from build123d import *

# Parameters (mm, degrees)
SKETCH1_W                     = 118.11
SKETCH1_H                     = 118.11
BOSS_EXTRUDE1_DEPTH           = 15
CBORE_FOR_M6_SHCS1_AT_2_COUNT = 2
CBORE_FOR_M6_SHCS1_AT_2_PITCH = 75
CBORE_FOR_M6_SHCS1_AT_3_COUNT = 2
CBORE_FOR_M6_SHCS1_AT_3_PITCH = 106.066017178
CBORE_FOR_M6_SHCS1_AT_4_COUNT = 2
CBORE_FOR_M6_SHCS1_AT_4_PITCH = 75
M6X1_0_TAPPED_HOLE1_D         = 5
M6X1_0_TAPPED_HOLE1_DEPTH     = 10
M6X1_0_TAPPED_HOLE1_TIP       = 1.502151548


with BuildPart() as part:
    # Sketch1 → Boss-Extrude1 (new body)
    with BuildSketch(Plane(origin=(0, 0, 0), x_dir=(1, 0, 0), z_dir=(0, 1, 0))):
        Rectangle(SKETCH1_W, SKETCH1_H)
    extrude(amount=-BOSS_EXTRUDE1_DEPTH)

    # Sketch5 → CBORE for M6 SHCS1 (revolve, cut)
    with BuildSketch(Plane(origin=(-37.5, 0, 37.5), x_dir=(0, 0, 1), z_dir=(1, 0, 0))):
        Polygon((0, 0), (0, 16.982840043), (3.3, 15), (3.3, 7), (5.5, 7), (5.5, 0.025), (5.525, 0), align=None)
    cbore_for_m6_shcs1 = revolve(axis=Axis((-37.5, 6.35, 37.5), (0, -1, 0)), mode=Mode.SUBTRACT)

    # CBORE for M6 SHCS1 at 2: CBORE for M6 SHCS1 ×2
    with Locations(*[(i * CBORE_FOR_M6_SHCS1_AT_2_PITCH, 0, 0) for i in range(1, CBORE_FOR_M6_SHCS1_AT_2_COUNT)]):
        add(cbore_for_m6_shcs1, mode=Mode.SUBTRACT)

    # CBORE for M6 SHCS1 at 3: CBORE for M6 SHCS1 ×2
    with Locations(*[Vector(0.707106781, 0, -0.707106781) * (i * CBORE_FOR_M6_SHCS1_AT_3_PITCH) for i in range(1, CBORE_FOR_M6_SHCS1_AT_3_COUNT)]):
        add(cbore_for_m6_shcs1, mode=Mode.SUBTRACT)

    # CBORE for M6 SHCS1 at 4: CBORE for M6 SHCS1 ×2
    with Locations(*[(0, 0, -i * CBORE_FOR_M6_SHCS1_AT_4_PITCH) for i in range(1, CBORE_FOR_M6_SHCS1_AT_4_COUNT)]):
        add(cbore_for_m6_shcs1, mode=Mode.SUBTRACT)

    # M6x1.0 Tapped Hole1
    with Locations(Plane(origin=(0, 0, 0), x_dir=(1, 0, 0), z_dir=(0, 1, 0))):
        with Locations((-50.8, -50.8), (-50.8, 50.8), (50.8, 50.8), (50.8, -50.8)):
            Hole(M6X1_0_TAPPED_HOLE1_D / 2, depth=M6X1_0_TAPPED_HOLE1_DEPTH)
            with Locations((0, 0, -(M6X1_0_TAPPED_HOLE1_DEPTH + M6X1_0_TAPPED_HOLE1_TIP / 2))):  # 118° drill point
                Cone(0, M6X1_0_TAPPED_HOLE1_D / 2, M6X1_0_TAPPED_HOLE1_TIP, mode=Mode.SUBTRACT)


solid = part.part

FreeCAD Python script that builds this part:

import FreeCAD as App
import Part
import Sketcher

V = App.Vector
Q = App.Units.Quantity


def add_polygon(sketch, points):
    """Adds a closed chain of lines whose ends are joined by coincident constraints."""
    first, n = sketch.GeometryCount, len(points)
    for a, b in zip(points, points[1:] + points[:1]):
        sketch.addGeometry(Part.LineSegment(App.Vector(*a, 0), App.Vector(*b, 0)), False)
    for i in range(n):
        sketch.addConstraint(Sketcher.Constraint("Coincident", first + i, 2, first + (i + 1) % n, 1))

doc = App.newDocument("Part")
body = doc.addObject("PartDesign::Body", "Body")

# Sketch on XZ plane
sketch1 = body.newObject("Sketcher::SketchObject", "Sketch")
sketch1.AttachmentSupport = (doc.getObject("XZ_Plane"), [""])
sketch1.MapMode = "FlatFace"
add_polygon(sketch1, [(-59.055, -59.055), (-59.055, 59.055), (59.055, 59.055), (59.055, -59.055)])  # lines 0-3
sketch1.addConstraint(Sketcher.Constraint("Vertical", 0))
sketch1.addConstraint(Sketcher.Constraint("Horizontal", 1))
sketch1.addConstraint(Sketcher.Constraint("Vertical", 2))
sketch1.addConstraint(Sketcher.Constraint("Horizontal", 3))
sketch1.addConstraint(Sketcher.Constraint("Symmetric", 0, 2, 2, 2, -1, 1))
sketch1.addConstraint(Sketcher.Constraint("Equal", 3, 0))
sketch1.addConstraint(Sketcher.Constraint("DistanceX", 1, 1, 1, 2, Q("118.11 mm")))
pad1 = body.newObject("PartDesign::Pad", "Pad")
pad1.Profile = sketch1
pad1.Length = 15

# Sketch on YZ plane
sketch2 = body.newObject("Sketcher::SketchObject", "Sketch001")
sketch2.AttachmentSupport = (doc.getObject("YZ_Plane"), [""])
sketch2.MapMode = "FlatFace"
sketch2.AttachmentOffset = App.Placement(V(0, 0, -37.5), App.Rotation())
add_polygon(sketch2, [(-16.98284, 37.5), (0, 37.5), (0, 43.025), (-0.025, 43), (-7, 43), (-7, 40.8), (-15, 40.8)])  # lines 0-6
sketch2.addGeometry(Part.LineSegment(V(0, 37.5, 0), V(-16.98284, 37.5, 0)), True)  # axis
sketch2.addConstraint(Sketcher.Constraint("Horizontal", 0))
sketch2.addConstraint(Sketcher.Constraint("Vertical", 1))
sketch2.addConstraint(Sketcher.Constraint("Horizontal", 3))
sketch2.addConstraint(Sketcher.Constraint("Vertical", 4))
sketch2.addConstraint(Sketcher.Constraint("Horizontal", 5))
sketch2.addConstraint(Sketcher.Constraint("Horizontal", 7))
sketch2.addConstraint(Sketcher.Constraint("Coincident", 7, 1, 0, 2))
sketch2.addConstraint(Sketcher.Constraint("PointOnObject", 0, 2, -2))
sketch2.addConstraint(Sketcher.Constraint("Equal", 0, 7))
sketch2.addConstraint(Sketcher.Constraint("DistanceX", 5, 2, 5, 1, Q("8 mm")))
sketch2.addConstraint(Sketcher.Constraint("Angle", 2, Q("-135 deg")))
sketch2.addConstraint(Sketcher.Constraint("Angle", 6, Q("-121 deg")))
sketch2.addConstraint(Sketcher.Constraint("DistanceY", 4, 2, 4, 1, Q("2.2 mm")))
sketch2.addConstraint(Sketcher.Constraint("DistanceY", -1, 1, 2, 2, Q("43 mm")))
sketch2.addConstraint(Sketcher.Constraint("DistanceX", 3, 2, -1, 1, Q("7 mm")))
sketch2.addConstraint(Sketcher.Constraint("DistanceY", -1, 1, 0, 2, Q("37.5 mm")))
sketch2.addConstraint(Sketcher.Constraint("DistanceX", 3, 2, 3, 1, Q("6.975 mm")))
groove = body.newObject("PartDesign::Groove", "Groove")
groove.Profile = sketch2
groove.ReferenceAxis = (sketch2, ["Axis0"])
groove.Angle = 360
doc.recompute()

linearpattern = body.newObject("PartDesign::LinearPattern", "LinearPattern")
linearpattern.Originals = [groove]
linearpattern.Direction = (doc.getObject("X_Axis"), [""])
linearpattern.Mode = "offset"
linearpattern.Offset = 75
linearpattern.Occurrences = 2
body.Tip = linearpattern
doc.recompute()

datumline = body.newObject("PartDesign::Line", "DatumLine")
datumline.Placement = App.Placement(V(0, 0, 0), App.Rotation(V(0, 0, 1), V(0.707106781, 0, -0.707106781)))
linearpattern2 = body.newObject("PartDesign::LinearPattern", "LinearPattern001")
linearpattern2.Originals = [groove]
linearpattern2.Direction = (datumline, [""])
linearpattern2.Mode = "offset"
linearpattern2.Offset = 106.066017
linearpattern2.Occurrences = 2
body.Tip = linearpattern2
doc.recompute()

linearpattern3 = body.newObject("PartDesign::LinearPattern", "LinearPattern002")
linearpattern3.Originals = [groove]
linearpattern3.Direction = (doc.getObject("Z_Axis"), [""])
linearpattern3.Mode = "offset"
linearpattern3.Offset = 75
linearpattern3.Occurrences = 2
linearpattern3.Reversed = True
body.Tip = linearpattern3

# Sketch on XZ plane
sketch3 = body.newObject("Sketcher::SketchObject", "Sketch002")
sketch3.AttachmentSupport = (doc.getObject("XZ_Plane"), [""])
sketch3.MapMode = "FlatFace"
sketch3.addGeometry(Part.Circle(V(-50.8, 50.8, 0), V(0, 0, 1), 2.5), False)
sketch3.addGeometry(Part.Circle(V(-50.8, -50.8, 0), V(0, 0, 1), 2.5), False)
sketch3.addGeometry(Part.Circle(V(50.8, -50.8, 0), V(0, 0, 1), 2.5), False)
sketch3.addGeometry(Part.Circle(V(50.8, 50.8, 0), V(0, 0, 1), 2.5), False)
sketch3.addConstraint(Sketcher.Constraint("Equal", 0, 1))
sketch3.addConstraint(Sketcher.Constraint("Equal", 1, 2))
sketch3.addConstraint(Sketcher.Constraint("Equal", 2, 3))
sketch3.addConstraint(Sketcher.Constraint("Symmetric", 0, 3, 2, 3, -1, 1))
sketch3.addConstraint(Sketcher.Constraint("Symmetric", 1, 3, 3, 3, -1, 1))
sketch3.addConstraint(Sketcher.Constraint("Symmetric", 1, 3, 2, 3, -2))
sketch3.addConstraint(Sketcher.Constraint("Diameter", 0, Q("5 mm")))
sketch3.addConstraint(Sketcher.Constraint("DistanceX", 0, 3, -1, 1, Q("50.8 mm")))
sketch3.addConstraint(Sketcher.Constraint("DistanceY", -1, 1, 0, 3, Q("50.8 mm")))
doc.recompute()
hole = body.newObject("PartDesign::Hole", "Hole")
hole.Profile = sketch3
hole.ThreadType = "None"
hole.Diameter = 5
hole.DepthType = "Dimension"
hole.Depth = 10
hole.DrillPoint = "Angled"
hole.DrillPointAngle = 118
hole.Reversed = True

doc.recompute()
